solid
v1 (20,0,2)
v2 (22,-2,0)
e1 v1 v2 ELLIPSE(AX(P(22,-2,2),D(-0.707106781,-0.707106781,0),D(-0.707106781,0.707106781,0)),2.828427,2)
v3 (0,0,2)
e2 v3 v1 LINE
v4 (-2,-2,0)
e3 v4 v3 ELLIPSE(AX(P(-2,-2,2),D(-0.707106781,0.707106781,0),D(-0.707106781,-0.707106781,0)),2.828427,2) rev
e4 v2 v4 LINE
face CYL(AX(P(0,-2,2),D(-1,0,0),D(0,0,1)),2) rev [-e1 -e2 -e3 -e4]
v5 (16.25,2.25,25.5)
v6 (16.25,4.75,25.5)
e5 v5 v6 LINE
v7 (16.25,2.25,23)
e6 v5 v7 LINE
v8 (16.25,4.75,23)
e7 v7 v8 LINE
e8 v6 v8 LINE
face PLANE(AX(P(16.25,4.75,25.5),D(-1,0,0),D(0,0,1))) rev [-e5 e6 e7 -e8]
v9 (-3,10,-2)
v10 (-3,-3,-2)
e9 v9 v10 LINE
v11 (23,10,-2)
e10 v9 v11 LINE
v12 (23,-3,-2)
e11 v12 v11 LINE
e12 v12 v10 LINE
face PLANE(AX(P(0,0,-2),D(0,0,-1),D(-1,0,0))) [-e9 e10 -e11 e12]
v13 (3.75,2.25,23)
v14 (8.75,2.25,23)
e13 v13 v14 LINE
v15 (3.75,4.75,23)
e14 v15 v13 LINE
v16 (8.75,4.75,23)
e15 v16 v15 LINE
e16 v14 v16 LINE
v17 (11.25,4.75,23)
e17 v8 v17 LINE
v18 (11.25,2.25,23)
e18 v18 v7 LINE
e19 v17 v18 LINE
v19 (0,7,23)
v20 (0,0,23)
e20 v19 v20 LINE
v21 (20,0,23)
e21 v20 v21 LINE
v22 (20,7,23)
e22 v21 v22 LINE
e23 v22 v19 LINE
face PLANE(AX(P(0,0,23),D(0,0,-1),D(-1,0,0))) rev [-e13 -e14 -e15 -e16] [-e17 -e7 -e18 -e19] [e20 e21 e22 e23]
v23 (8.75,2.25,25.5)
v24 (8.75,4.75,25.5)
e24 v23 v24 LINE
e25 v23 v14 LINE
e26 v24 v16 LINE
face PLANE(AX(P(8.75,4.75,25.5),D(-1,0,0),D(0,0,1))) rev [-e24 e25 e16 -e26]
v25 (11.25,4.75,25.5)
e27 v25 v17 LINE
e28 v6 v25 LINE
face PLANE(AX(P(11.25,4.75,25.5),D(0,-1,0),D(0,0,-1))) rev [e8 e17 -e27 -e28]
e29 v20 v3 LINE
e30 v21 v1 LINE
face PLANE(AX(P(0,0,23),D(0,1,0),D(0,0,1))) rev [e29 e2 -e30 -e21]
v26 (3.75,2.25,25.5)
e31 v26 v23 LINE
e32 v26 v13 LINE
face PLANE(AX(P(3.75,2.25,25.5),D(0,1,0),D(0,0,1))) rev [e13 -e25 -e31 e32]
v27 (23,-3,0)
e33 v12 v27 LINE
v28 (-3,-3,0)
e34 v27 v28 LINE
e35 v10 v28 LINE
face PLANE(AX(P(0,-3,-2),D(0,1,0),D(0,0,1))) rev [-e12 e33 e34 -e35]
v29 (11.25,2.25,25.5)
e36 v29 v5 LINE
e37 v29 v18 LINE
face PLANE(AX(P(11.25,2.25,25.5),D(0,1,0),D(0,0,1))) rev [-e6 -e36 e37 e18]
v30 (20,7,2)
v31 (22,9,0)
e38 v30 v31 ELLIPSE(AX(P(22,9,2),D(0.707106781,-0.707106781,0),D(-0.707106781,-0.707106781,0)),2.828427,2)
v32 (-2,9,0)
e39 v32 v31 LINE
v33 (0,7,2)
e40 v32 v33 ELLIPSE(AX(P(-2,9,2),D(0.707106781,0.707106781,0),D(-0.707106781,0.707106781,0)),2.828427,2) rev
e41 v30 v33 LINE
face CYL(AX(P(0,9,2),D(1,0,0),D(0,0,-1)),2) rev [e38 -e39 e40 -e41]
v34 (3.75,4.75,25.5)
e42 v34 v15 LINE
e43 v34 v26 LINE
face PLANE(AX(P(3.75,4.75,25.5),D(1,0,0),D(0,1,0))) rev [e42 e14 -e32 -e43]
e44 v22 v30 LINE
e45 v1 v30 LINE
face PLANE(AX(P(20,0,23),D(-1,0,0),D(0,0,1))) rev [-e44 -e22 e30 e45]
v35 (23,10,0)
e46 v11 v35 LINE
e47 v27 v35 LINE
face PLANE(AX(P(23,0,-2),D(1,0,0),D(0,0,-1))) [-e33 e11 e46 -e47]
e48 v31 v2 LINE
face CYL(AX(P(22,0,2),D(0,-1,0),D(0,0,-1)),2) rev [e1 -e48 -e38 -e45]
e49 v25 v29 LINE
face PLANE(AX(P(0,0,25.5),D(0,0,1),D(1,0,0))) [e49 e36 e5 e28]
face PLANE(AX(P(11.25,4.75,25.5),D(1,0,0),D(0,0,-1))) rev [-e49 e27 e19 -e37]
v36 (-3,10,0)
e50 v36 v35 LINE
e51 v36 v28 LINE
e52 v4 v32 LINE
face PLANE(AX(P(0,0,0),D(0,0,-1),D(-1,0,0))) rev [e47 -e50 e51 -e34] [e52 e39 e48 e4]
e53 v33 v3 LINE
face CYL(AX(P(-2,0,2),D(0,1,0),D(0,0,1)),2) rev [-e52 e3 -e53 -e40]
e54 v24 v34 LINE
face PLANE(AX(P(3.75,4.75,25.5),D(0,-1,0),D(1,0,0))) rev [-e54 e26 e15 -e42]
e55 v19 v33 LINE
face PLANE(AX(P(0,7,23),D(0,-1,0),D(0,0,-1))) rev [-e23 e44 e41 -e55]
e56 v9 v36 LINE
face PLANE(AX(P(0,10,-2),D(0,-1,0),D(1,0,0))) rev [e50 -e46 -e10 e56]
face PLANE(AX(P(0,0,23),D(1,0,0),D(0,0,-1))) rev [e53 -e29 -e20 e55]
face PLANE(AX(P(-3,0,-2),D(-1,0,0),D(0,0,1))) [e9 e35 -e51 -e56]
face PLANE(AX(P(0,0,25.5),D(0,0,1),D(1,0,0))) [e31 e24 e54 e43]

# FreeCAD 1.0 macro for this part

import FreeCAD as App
import Part
import Sketcher
from FreeCAD import Vector
Q = App.Units.Quantity


def edges_at(feature, points):
    """Names of the edges that pass closest to the given points."""
    edges = feature.Shape.Edges
    near = lambda p: min(range(len(edges)), key=lambda i: edges[i].distToShape(Part.Vertex(*p))[0])
    return sorted({f"Edge{near(p) + 1}" for p in points})

doc = App.newDocument("Part")
params = doc.addObject("Spreadsheet::Sheet", "Params")
for row, (alias, value) in enumerate([
    ("sketch1_width", "20 mm"),
    ("sketch1_height", "7 mm"),
    ("pad1_length", "23 mm"),
    ("sketch2_width", "5 mm"),
    ("sketch2_height", "2.5 mm"),
    ("pad2_length", "2.5 mm"),
    ("sketch3_width", "26 mm"),
    ("sketch3_height", "13 mm"),
    ("pad3_length", "2 mm"),
    ("fillet_radius", "2 mm"),
], start=1):
    params.set(f"A{row}", alias)
    params.set(f"B{row}", "=" + value)
    params.setAlias(f"B{row}", alias)

body = doc.addObject("PartDesign::Body", "Body")

sketch1 = body.newObject("Sketcher::SketchObject", "Sketch")
sketch1.AttachmentSupport = (doc.getObject("XY_Plane"), [""])
sketch1.MapMode = "FlatFace"
sketch1.addGeometry(Part.LineSegment(Vector(0, 7, 0), Vector(0, 0, 0)), False)
sketch1.addGeometry(Part.LineSegment(Vector(0, 0, 0), Vector(20, 0, 0)), False)
sketch1.addGeometry(Part.LineSegment(Vector(20, 0, 0), Vector(20, 7, 0)), False)
sketch1.addGeometry(Part.LineSegment(Vector(20, 7, 0), Vector(0, 7, 0)), False)
sketch1.addConstraint(Sketcher.Constraint("Coincident", 0, 2, 1, 1))
sketch1.addConstraint(Sketcher.Constraint("Coincident", 1, 2, 2, 1))
sketch1.addConstraint(Sketcher.Constraint("Coincident", 2, 2, 3, 1))
sketch1.addConstraint(Sketcher.Constraint("Coincident", 3, 2, 0, 1))
sketch1.addConstraint(Sketcher.Constraint("Vertical", 0))
sketch1.addConstraint(Sketcher.Constraint("Horizontal", 1))
sketch1.addConstraint(Sketcher.Constraint("Vertical", 2))
sketch1.addConstraint(Sketcher.Constraint("Horizontal", 3))
sketch1.addConstraint(Sketcher.Constraint("Coincident", 0, 2, -1, 1))
sketch1.addConstraint(Sketcher.Constraint("DistanceX", 1, 1, 1, 2, Q("20 mm")))
sketch1.addConstraint(Sketcher.Constraint("DistanceY", 0, 2, 0, 1, Q("7 mm")))
sketch1.setExpression("Constraints[9]", "Params.sketch1_width")
sketch1.setExpression("Constraints[10]", "Params.sketch1_height")
pad1 = body.newObject("PartDesign::Pad", "Pad")
pad1.Profile = sketch1
pad1.setExpression("Length", "Params.pad1_length")

sketch2 = body.newObject("Sketcher::SketchObject", "Sketch001")
sketch2.AttachmentSupport = (doc.getObject("XY_Plane"), [""])
sketch2.MapMode = "FlatFace"
sketch2.AttachmentOffset = App.Placement(Vector(0, 0, 23), App.Rotation())
sketch2.addGeometry(Part.LineSegment(Vector(3.8, 4.8, 0), Vector(3.8, 2.2, 0)), False)
sketch2.addGeometry(Part.LineSegment(Vector(3.8, 2.2, 0), Vector(8.8, 2.2, 0)), False)
sketch2.addGeometry(Part.LineSegment(Vector(8.8, 2.2, 0), Vector(8.8, 4.8, 0)), False)
sketch2.addGeometry(Part.LineSegment(Vector(8.8, 4.8, 0), Vector(3.8, 4.8, 0)), False)
sketch2.addGeometry(Part.LineSegment(Vector(11.2, 4.8, 0), Vector(11.2, 2.2, 0)), False)
sketch2.addGeometry(Part.LineSegment(Vector(11.2, 2.2, 0), Vector(16.2, 2.2, 0)), False)
sketch2.addGeometry(Part.LineSegment(Vector(16.2, 2.2, 0), Vector(16.2, 4.8, 0)), False)
sketch2.addGeometry(Part.LineSegment(Vector(16.2, 4.8, 0), Vector(11.2, 4.8, 0)), False)
sketch2.addConstraint(Sketcher.Constraint("Coincident", 0, 2, 1, 1))
sketch2.addConstraint(Sketcher.Constraint("Coincident", 1, 2, 2, 1))
sketch2.addConstraint(Sketcher.Constraint("Coincident", 2, 2, 3, 1))
sketch2.addConstraint(Sketcher.Constraint("Coincident", 3, 2, 0, 1))
sketch2.addConstraint(Sketcher.Constraint("Coincident", 4, 2, 5, 1))
sketch2.addConstraint(Sketcher.Constraint("Coincident", 5, 2, 6, 1))
sketch2.addConstraint(Sketcher.Constraint("Coincident", 6, 2, 7, 1))
sketch2.addConstraint(Sketcher.Constraint("Coincident", 7, 2, 4, 1))
sketch2.addConstraint(Sketcher.Constraint("Vertical", 0))
sketch2.addConstraint(Sketcher.Constraint("Horizontal", 1))
sketch2.addConstraint(Sketcher.Constraint("Vertical", 2))
sketch2.addConstraint(Sketcher.Constraint("Horizontal", 3))
sketch2.addConstraint(Sketcher.Constraint("Vertical", 4))
sketch2.addConstraint(Sketcher.Constraint("Horizontal", 5))
sketch2.addConstraint(Sketcher.Constraint("Vertical", 6))
sketch2.addConstraint(Sketcher.Constraint("Horizontal", 7))
sketch2.addConstraint(Sketcher.Constraint("Horizontal", 1, 2, 4, 2))
sketch2.addConstraint(Sketcher.Constraint("Horizontal", 3, 2, 6, 2))
sketch2.addConstraint(Sketcher.Constraint("Equal", 3, 5))
sketch2.addConstraint(Sketcher.Constraint("DistanceX", 1, 1, 1, 2, Q("5 mm")))
sketch2.addConstraint(Sketcher.Constraint("DistanceY", 0, 2, 0, 1, Q("2.5 mm")))
sketch2.addConstraint(Sketcher.Constraint("DistanceX", 1, 2, 4, 2, Q("2.5 mm")))
sketch2.addConstraint(Sketcher.Constraint("DistanceX", -1, 1, 0, 2, Q("3.75 mm")))
sketch2.addConstraint(Sketcher.Constraint("DistanceY", -1, 1, 0, 2, Q("2.25 mm")))
sketch2.setExpression("Constraints[19]", "Params.sketch2_width")
sketch2.setExpression("Constraints[20]", "Params.sketch2_height")
pad2 = body.newObject("PartDesign::Pad", "Pad001")
pad2.Profile = sketch2
pad2.setExpression("Length", "Params.pad2_length")

sketch3 = body.newObject("Sketcher::SketchObject", "Sketch002")
sketch3.AttachmentSupport = (doc.getObject("XY_Plane"), [""])
sketch3.MapMode = "FlatFace"
sketch3.addGeometry(Part.LineSegment(Vector(23, 10, 0), Vector(23, -3, 0)), False)
sketch3.addGeometry(Part.LineSegment(Vector(23, -3, 0), Vector(-3, -3, 0)), False)
sketch3.addGeometry(Part.LineSegment(Vector(-3, -3, 0), Vector(-3, 10, 0)), False)
sketch3.addGeometry(Part.LineSegment(Vector(-3, 10, 0), Vector(23, 10, 0)), False)
sketch3.addConstraint(Sketcher.Constraint("Coincident", 0, 2, 1, 1))
sketch3.addConstraint(Sketcher.Constraint("Coincident", 1, 2, 2, 1))
sketch3.addConstraint(Sketcher.Constraint("Coincident", 2, 2, 3, 1))
sketch3.addConstraint(Sketcher.Constraint("Coincident", 3, 2, 0, 1))
sketch3.addConstraint(Sketcher.Constraint("Vertical", 0))
sketch3.addConstraint(Sketcher.Constraint("Horizontal", 1))
sketch3.addConstraint(Sketcher.Constraint("Vertical", 2))
sketch3.addConstraint(Sketcher.Constraint("Horizontal", 3))
sketch3.addConstraint(Sketcher.Constraint("DistanceX", 1, 2, 1, 1, Q("26 mm")))
sketch3.addConstraint(Sketcher.Constraint("DistanceY", 0, 2, 0, 1, Q("13 mm")))
sketch3.addConstraint(Sketcher.Constraint("DistanceX", -1, 1, 0, 2, Q("23 mm")))
sketch3.addConstraint(Sketcher.Constraint("DistanceY", 0, 2, -1, 1, Q("3 mm")))
sketch3.setExpression("Constraints[8]", "Params.sketch3_width")
sketch3.setExpression("Constraints[9]", "Params.sketch3_height")
pad3 = body.newObject("PartDesign::Pad", "Pad002")
pad3.Profile = sketch3
pad3.setExpression("Length", "Params.pad3_length")
pad3.Reversed = True
doc.recompute()

fillet = body.newObject("PartDesign::Fillet", "Fillet")
fillet.Base = (pad3, edges_at(pad3, [
    (10, 7, 0),
    (20, 3.5, 0),
    (10, 0, 0),
    (0, 3.5, 0),
]))
fillet.setExpression("Radius", "Params.fillet_radius")

doc.recompute()
